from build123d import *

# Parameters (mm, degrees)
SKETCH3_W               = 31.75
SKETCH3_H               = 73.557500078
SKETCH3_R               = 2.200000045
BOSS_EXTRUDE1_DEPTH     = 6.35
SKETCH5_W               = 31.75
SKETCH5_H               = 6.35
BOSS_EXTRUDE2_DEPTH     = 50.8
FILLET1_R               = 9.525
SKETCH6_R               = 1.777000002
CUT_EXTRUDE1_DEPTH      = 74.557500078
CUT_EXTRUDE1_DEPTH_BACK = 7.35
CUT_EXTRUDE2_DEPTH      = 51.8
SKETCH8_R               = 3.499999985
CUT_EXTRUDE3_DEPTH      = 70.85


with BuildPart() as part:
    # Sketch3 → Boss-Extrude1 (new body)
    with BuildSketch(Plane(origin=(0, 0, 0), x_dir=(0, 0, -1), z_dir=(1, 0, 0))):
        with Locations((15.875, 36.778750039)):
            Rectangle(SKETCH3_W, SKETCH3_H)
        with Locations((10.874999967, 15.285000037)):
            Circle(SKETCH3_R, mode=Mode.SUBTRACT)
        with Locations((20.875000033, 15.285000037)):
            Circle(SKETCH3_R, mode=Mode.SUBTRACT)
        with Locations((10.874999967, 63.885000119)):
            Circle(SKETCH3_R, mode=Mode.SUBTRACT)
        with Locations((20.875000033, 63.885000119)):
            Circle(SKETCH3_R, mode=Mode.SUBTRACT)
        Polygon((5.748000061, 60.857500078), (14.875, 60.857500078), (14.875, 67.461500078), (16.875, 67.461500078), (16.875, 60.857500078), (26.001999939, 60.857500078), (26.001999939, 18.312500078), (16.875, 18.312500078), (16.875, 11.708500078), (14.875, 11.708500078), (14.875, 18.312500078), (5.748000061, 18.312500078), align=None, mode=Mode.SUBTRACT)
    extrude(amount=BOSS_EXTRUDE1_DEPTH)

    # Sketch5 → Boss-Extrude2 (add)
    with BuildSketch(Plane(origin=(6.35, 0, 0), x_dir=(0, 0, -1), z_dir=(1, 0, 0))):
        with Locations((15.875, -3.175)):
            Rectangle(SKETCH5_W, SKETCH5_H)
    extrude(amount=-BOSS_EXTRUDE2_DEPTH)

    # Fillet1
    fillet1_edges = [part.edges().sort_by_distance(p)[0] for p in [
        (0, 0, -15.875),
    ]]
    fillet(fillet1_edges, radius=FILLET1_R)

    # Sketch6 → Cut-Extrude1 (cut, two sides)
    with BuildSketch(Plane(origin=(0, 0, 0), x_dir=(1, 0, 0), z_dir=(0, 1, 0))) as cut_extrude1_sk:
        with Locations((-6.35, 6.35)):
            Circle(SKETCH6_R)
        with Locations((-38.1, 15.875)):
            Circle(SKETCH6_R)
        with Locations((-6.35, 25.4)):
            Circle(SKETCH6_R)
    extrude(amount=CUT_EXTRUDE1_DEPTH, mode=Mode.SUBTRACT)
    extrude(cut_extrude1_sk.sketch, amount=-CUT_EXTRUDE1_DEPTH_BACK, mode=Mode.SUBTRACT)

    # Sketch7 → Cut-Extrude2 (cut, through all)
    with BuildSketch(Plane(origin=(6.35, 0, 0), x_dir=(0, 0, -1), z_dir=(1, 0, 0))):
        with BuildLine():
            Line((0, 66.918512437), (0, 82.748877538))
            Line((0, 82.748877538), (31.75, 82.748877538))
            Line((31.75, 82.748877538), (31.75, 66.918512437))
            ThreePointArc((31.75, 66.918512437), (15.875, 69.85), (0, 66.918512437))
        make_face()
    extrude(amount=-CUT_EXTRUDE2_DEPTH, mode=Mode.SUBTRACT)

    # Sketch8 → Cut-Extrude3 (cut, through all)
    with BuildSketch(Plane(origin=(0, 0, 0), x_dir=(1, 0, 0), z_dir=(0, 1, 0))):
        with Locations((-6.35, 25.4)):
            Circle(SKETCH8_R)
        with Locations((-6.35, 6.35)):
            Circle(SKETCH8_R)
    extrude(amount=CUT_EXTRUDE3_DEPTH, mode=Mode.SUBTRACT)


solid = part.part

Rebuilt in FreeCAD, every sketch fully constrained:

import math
import FreeCAD as App
import Part
import Sketcher
from FreeCAD import Vector
Q = App.Units.Quantity


def edges_at(feature, points):
    """Names of the edges that pass closest to the given points."""
    edges = feature.Shape.Edges
    near = lambda p: min(range(len(edges)), key=lambda i: edges[i].distToShape(Part.Vertex(*p))[0])
    return sorted({f"Edge{near(p) + 1}" for p in points})

doc = App.newDocument("Part")
params = doc.addObject("Spreadsheet::Sheet", "Params")
for row, (alias, value) in enumerate([
    ("sketch1_width", "0.26 in"),
    ("sketch1_height", "1.25 in"),
    ("sketch1_width2", "1.675 in"),
    ("pad1_length", "0.25 in"),
    ("sketch2_width", "0.25 in"),
    ("sketch2_height", "1.25 in"),
    ("pad2_length", "2 in"),
    ("fillet_radius", "0.375 in"),
    ("sketch4_radius", "1.75 in"),
    ("sketch4_height", "1.25 in"),
], start=1):
    params.set(f"A{row}", alias)
    params.set(f"B{row}", "=" + value)
    params.setAlias(f"B{row}", alias)

body = doc.addObject("PartDesign::Body", "Body")

# Sketch on YZ plane
sketch1 = doc.addObject("Sketcher::SketchObject", "Sketch")
body.addObject(sketch1)
sketch1.AttachmentSupport = (doc.YZ_Plane, [""])
sketch1.MapMode = "FlatFace"
sketch1.addGeometry(Part.LineSegment(Vector(73.6, 0, 0), Vector(0, 0, 0)), False)
sketch1.addGeometry(Part.LineSegment(Vector(0, 0, 0), Vector(0, -31.8, 0)), False)
sketch1.addGeometry(Part.LineSegment(Vector(0, -31.8, 0), Vector(73.6, -31.8, 0)), False)
sketch1.addGeometry(Part.LineSegment(Vector(73.6, -31.8, 0), Vector(73.6, 0, 0)), False)
sketch1.addGeometry(Part.Circle(Vector(15.3, -10.9, 0), Vector(0, 0, 1), 2.2), False)
sketch1.addGeometry(Part.Circle(Vector(15.3, -20.9, 0), Vector(0, 0, 1), 2.2), False)
sketch1.addGeometry(Part.Circle(Vector(63.9, -10.9, 0), Vector(0, 0, 1), 2.2), False)
sketch1.addGeometry(Part.LineSegment(Vector(18.3, -5.7, 0), Vector(60.9, -5.7, 0)), False)
sketch1.addGeometry(Part.LineSegment(Vector(60.9, -5.7, 0), Vector(60.9, -14.9, 0)), False)
sketch1.addGeometry(Part.LineSegment(Vector(60.9, -14.9, 0), Vector(67.5, -14.9, 0)), False)
sketch1.addGeometry(Part.LineSegment(Vector(67.5, -14.9, 0), Vector(67.5, -16.9, 0)), False)
sketch1.addGeometry(Part.LineSegment(Vector(67.5, -16.9, 0), Vector(60.9, -16.9, 0)), False)
sketch1.addGeometry(Part.LineSegment(Vector(60.9, -16.9, 0), Vector(60.9, -26, 0)), False)
sketch1.addGeometry(Part.LineSegment(Vector(60.9, -26, 0), Vector(18.3, -26, 0)), False)
sketch1.addGeometry(Part.LineSegment(Vector(18.3, -26, 0), Vector(18.3, -16.9, 0)), False)
sketch1.addGeometry(Part.LineSegment(Vector(18.3, -16.9, 0), Vector(11.7, -16.9, 0)), False)
sketch1.addGeometry(Part.LineSegment(Vector(11.7, -16.9, 0), Vector(11.7, -14.9, 0)), False)
sketch1.addGeometry(Part.LineSegment(Vector(11.7, -14.9, 0), Vector(18.3, -14.9, 0)), False)
sketch1.addGeometry(Part.LineSegment(Vector(18.3, -14.9, 0), Vector(18.3, -5.7, 0)), False)
sketch1.addGeometry(Part.Circle(Vector(63.9, -20.9, 0), Vector(0, 0, 1), 2.2), False)
sketch1.addConstraint(Sketcher.Constraint("Coincident", 0, 2, 1, 1))
sketch1.addConstraint(Sketcher.Constraint("Coincident", 1, 2, 2, 1))
sketch1.addConstraint(Sketcher.Constraint("Coincident", 2, 2, 3, 1))
sketch1.addConstraint(Sketcher.Constraint("Coincident", 3, 2, 0, 1))
sketch1.addConstraint(Sketcher.Constraint("Coincident", 7, 2, 8, 1))
sketch1.addConstraint(Sketcher.Constraint("Coincident", 8, 2, 9, 1))
sketch1.addConstraint(Sketcher.Constraint("Coincident", 9, 2, 10, 1))
sketch1.addConstraint(Sketcher.Constraint("Coincident", 10, 2, 11, 1))
sketch1.addConstraint(Sketcher.Constraint("Coincident", 11, 2, 12, 1))
sketch1.addConstraint(Sketcher.Constraint("Coincident", 12, 2, 13, 1))
sketch1.addConstraint(Sketcher.Constraint("Coincident", 13, 2, 14, 1))
sketch1.addConstraint(Sketcher.Constraint("Coincident", 14, 2, 15, 1))
sketch1.addConstraint(Sketcher.Constraint("Coincident", 15, 2, 16, 1))
sketch1.addConstraint(Sketcher.Constraint("Coincident", 16, 2, 17, 1))
sketch1.addConstraint(Sketcher.Constraint("Coincident", 17, 2, 18, 1))
sketch1.addConstraint(Sketcher.Constraint("Coincident", 18, 2, 7, 1))
sketch1.addConstraint(Sketcher.Constraint("Horizontal", 0))
sketch1.addConstraint(Sketcher.Constraint("Vertical", 1))
sketch1.addConstraint(Sketcher.Constraint("Horizontal", 2))
sketch1.addConstraint(Sketcher.Constraint("Vertical", 3))
sketch1.addConstraint(Sketcher.Constraint("Horizontal", 7))
sketch1.addConstraint(Sketcher.Constraint("Vertical", 8))
sketch1.addConstraint(Sketcher.Constraint("Horizontal", 9))
sketch1.addConstraint(Sketcher.Constraint("Vertical", 10))
sketch1.addConstraint(Sketcher.Constraint("Horizontal", 11))
sketch1.addConstraint(Sketcher.Constraint("Vertical", 12))
sketch1.addConstraint(Sketcher.Constraint("Horizontal", 13))
sketch1.addConstraint(Sketcher.Constraint("Vertical", 14))
sketch1.addConstraint(Sketcher.Constraint("Horizontal", 15))
sketch1.addConstraint(Sketcher.Constraint("Vertical", 16))
sketch1.addConstraint(Sketcher.Constraint("Horizontal", 17))
sketch1.addConstraint(Sketcher.Constraint("Vertical", 18))
sketch1.addConstraint(Sketcher.Constraint("Coincident", 0, 2, -1, 1))
sketch1.addConstraint(Sketcher.Constraint("Equal", 4, 5))
sketch1.addConstraint(Sketcher.Constraint("Equal", 5, 6))
sketch1.addConstraint(Sketcher.Constraint("Equal", 6, 19))
sketch1.addConstraint(Sketcher.Constraint("Horizontal", 4, 3, 6, 3))
sketch1.addConstraint(Sketcher.Constraint("Horizontal", 5, 3, 19, 3))
sketch1.addConstraint(Sketcher.Constraint("Horizontal", 11, 2, 14, 2))
sketch1.addConstraint(Sketcher.Constraint("Horizontal", 9, 2, 16, 2))
sketch1.addConstraint(Sketcher.Constraint("Vertical", 4, 3, 5, 3))
sketch1.addConstraint(Sketcher.Constraint("Vertical", 6, 3, 19, 3))
sketch1.addConstraint(Sketcher.Constraint("Vertical", 8, 2, 11, 2))
sketch1.addConstraint(Sketcher.Constraint("Vertical", 14, 2, 17, 2))
sketch1.addConstraint(Sketcher.Constraint("Equal", 11, 15))
sketch1.addConstraint(Sketcher.Constraint("Equal", 8, 12))
sketch1.addConstraint(Sketcher.Constraint("DistanceX", 9, 1, 9, 2, Q("0.26 in")))
sketch1.addConstraint(Sketcher.Constraint("DistanceY", 1, 2, 1, 1, Q("1.25 in")))
sketch1.addConstraint(Sketcher.Constraint("DistanceX", 7, 2, 3, 2, Q("0.5 in")))
sketch1.addConstraint(Sketcher.Constraint("Diameter", 4, Q("4.4 mm")))
sketch1.addConstraint(Sketcher.Constraint("DistanceX", 7, 1, 7, 2, Q("1.675 in")))
sketch1.addConstraint(Sketcher.Constraint("DistanceX", 0, 2, 0, 1, Q("73.5575 mm")))
sketch1.addConstraint(Sketcher.Constraint("DistanceY", 8, 2, 8, 1, Q("9.127 mm")))
sketch1.addConstraint(Sketcher.Constraint("DistanceY", 10, 2, 10, 1, Q("2 mm")))
sketch1.addConstraint(Sketcher.Constraint("DistanceX", -1, 1, 4, 3, Q("15.285 mm")))
sketch1.addConstraint(Sketcher.Constraint("DistanceY", 4, 3, -1, 1, Q("10.875 mm")))
sketch1.addConstraint(Sketcher.Constraint("DistanceY", 5, 3, -1, 1, Q("20.875 mm")))
sketch1.addConstraint(Sketcher.Constraint("DistanceX", -1, 1, 6, 3, Q("63.885 mm")))
sketch1.addConstraint(Sketcher.Constraint("DistanceY", 7, 2, -1, 1, Q("5.748 mm")))
sketch1.setExpression("Constraints[46]", "Params.sketch1_width")
sketch1.setExpression("Constraints[47]", "Params.sketch1_height")
sketch1.setExpression("Constraints[50]", "Params.sketch1_width2")
pad1 = doc.addObject("PartDesign::Pad", "Pad")
body.addObject(pad1)
pad1.Profile = sketch1
pad1.setExpression("Length", "Params.pad1_length")

# Sketch on YZ plane
sketch2 = doc.addObject("Sketcher::SketchObject", "Sketch001")
body.addObject(sketch2)
sketch2.AttachmentSupport = (doc.YZ_Plane, [""])
sketch2.MapMode = "FlatFace"
sketch2.AttachmentOffset = App.Placement(Vector(0, 0, 0.25 * 25.4), App.Rotation())
sketch2.addGeometry(Part.LineSegment(Vector(0, 0, 0), Vector(-6, 0, 0)), False)
sketch2.addGeometry(Part.LineSegment(Vector(-6, 0, 0), Vector(-6, -32, 0)), False)
sketch2.addGeometry(Part.LineSegment(Vector(-6, -32, 0), Vector(0, -32, 0)), False)
sketch2.addGeometry(Part.LineSegment(Vector(0, -32, 0), Vector(0, 0, 0)), False)
sketch2.addConstraint(Sketcher.Constraint("Coincident", 0, 2, 1, 1))
sketch2.addConstraint(Sketcher.Constraint("Coincident", 1, 2, 2, 1))
sketch2.addConstraint(Sketcher.Constraint("Coincident", 2, 2, 3, 1))
sketch2.addConstraint(Sketcher.Constraint("Coincident", 3, 2, 0, 1))
sketch2.addConstraint(Sketcher.Constraint("Horizontal", 0))
sketch2.addConstraint(Sketcher.Constraint("Vertical", 1))
sketch2.addConstraint(Sketcher.Constraint("Horizontal", 2))
sketch2.addConstraint(Sketcher.Constraint("Vertical", 3))
sketch2.addConstraint(Sketcher.Constraint("Coincident", 3, 2, -1, 1))
sketch2.addConstraint(Sketcher.Constraint("DistanceX", 0, 2, 0, 1, Q("0.25 in")))
sketch2.addConstraint(Sketcher.Constraint("DistanceY", 1, 2, 1, 1, Q("1.25 in")))
sketch2.setExpression("Constraints[9]", "Params.sketch2_width")
sketch2.setExpression("Constraints[10]", "Params.sketch2_height")
pad2 = doc.addObject("PartDesign::Pad", "Pad001")
body.addObject(pad2)
pad2.Profile = sketch2
pad2.setExpression("Length", "Params.pad2_length")
pad2.Reversed = True
doc.recompute()

fillet = doc.addObject("PartDesign::Fillet", "Fillet")
body.addObject(fillet)
fillet.Base = (pad2, edges_at(pad2, [(0, 0, -15.875)]))
fillet.setExpression("Radius", "Params.fillet_radius")

# Sketch on XZ plane
sketch3 = doc.addObject("Sketcher::SketchObject", "Sketch002")
body.addObject(sketch3)
sketch3.AttachmentSupport = (doc.XZ_Plane, [""])
sketch3.MapMode = "FlatFace"
sketch3.addGeometry(Part.Circle(Vector(-6.3, -6.3, 0), Vector(0, 0, 1), 1.8), False)
sketch3.addGeometry(Part.Circle(Vector(-38.1, -15.9, 0), Vector(0, 0, 1), 1.8), False)
sketch3.addGeometry(Part.Circle(Vector(-6.3, -25.4, 0), Vector(0, 0, 1), 1.8), False)
sketch3.addConstraint(Sketcher.Constraint("Equal", 0, 1))
sketch3.addConstraint(Sketcher.Constraint("Equal", 1, 2))
sketch3.addConstraint(Sketcher.Constraint("Vertical", 0, 3, 2, 3))
sketch3.addConstraint(Sketcher.Constraint("DistanceY", 2, 3, -1, 1, Q("1 in")))
sketch3.addConstraint(Sketcher.Constraint("DistanceX", 1, 3, -1, 1, Q("1.5 in")))
sketch3.addConstraint(Sketcher.Constraint("Diameter", 0, Q("3.554 mm")))
sketch3.addConstraint(Sketcher.Constraint("DistanceX", 0, 3, -1, 1, Q("0.25 in")))
sketch3.addConstraint(Sketcher.Constraint("DistanceY", 0, 3, -1, 1, Q("0.25 in")))
sketch3.addConstraint(Sketcher.Constraint("DistanceY", 1, 3, -1, 1, Q("0.625 in")))
pocket1 = doc.addObject("PartDesign::Pocket", "Pocket")
body.addObject(pocket1)
pocket1.Profile = sketch3
pocket1.Type = "ThroughAll"
pocket1.Midplane = True

# Sketch on YZ plane
sketch4 = doc.addObject("Sketcher::SketchObject", "Sketch003")
body.addObject(sketch4)
sketch4.AttachmentSupport = (doc.YZ_Plane, [""])
sketch4.MapMode = "FlatFace"
sketch4.AttachmentOffset = App.Placement(Vector(0, 0, 0.25 * 25.4), App.Rotation())
sketch4.addGeometry(Part.LineSegment(Vector(83, 0, 0), Vector(67, 0, 0)), False)
sketch4.addGeometry(Part.ArcOfCircle(Part.Circle(Vector(25, -16, 0), Vector(0, 0, 1), 44), math.radians(-21), math.radians(21)), False)
sketch4.addGeometry(Part.LineSegment(Vector(67, -32, 0), Vector(83, -32, 0)), False)
sketch4.addGeometry(Part.LineSegment(Vector(83, -32, 0), Vector(83, 0, 0)), False)
sketch4.addConstraint(Sketcher.Constraint("Coincident", 0, 2, 1, 2))
sketch4.addConstraint(Sketcher.Constraint("Coincident", 1, 1, 2, 1))
sketch4.addConstraint(Sketcher.Constraint("Coincident", 2, 2, 3, 1))
sketch4.addConstraint(Sketcher.Constraint("Coincident", 3, 2, 0, 1))
sketch4.addConstraint(Sketcher.Constraint("Horizontal", 0))
sketch4.addConstraint(Sketcher.Constraint("Horizontal", 2))
sketch4.addConstraint(Sketcher.Constraint("Vertical", 3))
sketch4.addConstraint(Sketcher.Constraint("PointOnObject", 0, 2, -1))
sketch4.addConstraint(Sketcher.Constraint("Vertical", 0, 2, 1, 1))
sketch4.addConstraint(Sketcher.Constraint("Radius", 1, Q("1.75 in")))
sketch4.addConstraint(Sketcher.Constraint("DistanceX", -1, 1, 1, 3, Q("1 in")))
sketch4.addConstraint(Sketcher.Constraint("DistanceY", 3, 1, 3, 2, Q("1.25 in")))
sketch4.addConstraint(Sketcher.Constraint("DistanceX", 0, 2, 0, 1, Q("15.830365 mm")))
sketch4.setExpression("Constraints[9]", "Params.sketch4_radius")
sketch4.setExpression("Constraints[11]", "Params.sketch4_height")
pocket2 = doc.addObject("PartDesign::Pocket", "Pocket001")
body.addObject(pocket2)
pocket2.Profile = sketch4
pocket2.Type = "ThroughAll"

# Sketch on XZ plane
sketch5 = doc.addObject("Sketcher::SketchObject", "Sketch004")
body.addObject(sketch5)
sketch5.AttachmentSupport = (doc.XZ_Plane, [""])
sketch5.MapMode = "FlatFace"
sketch5.addGeometry(Part.Circle(Vector(-6.3, -25.4, 0), Vector(0, 0, 1), 3.5), False)
sketch5.addGeometry(Part.Circle(Vector(-6.3, -6.3, 0), Vector(0, 0, 1), 3.5), False)
sketch5.addConstraint(Sketcher.Constraint("Equal", 0, 1))
sketch5.addConstraint(Sketcher.Constraint("Vertical", 0, 3, 1, 3))
sketch5.addConstraint(Sketcher.Constraint("DistanceY", 0, 3, -1, 1, Q("1 in")))
sketch5.addConstraint(Sketcher.Constraint("Diameter", 0, Q("7 mm")))
sketch5.addConstraint(Sketcher.Constraint("DistanceX", 0, 3, -1, 1, Q("0.25 in")))
sketch5.addConstraint(Sketcher.Constraint("DistanceY", 1, 3, -1, 1, Q("0.25 in")))
pocket3 = doc.addObject("PartDesign::Pocket", "Pocket002")
body.addObject(pocket3)
pocket3.Profile = sketch5
pocket3.Type = "ThroughAll"

doc.recompute()
